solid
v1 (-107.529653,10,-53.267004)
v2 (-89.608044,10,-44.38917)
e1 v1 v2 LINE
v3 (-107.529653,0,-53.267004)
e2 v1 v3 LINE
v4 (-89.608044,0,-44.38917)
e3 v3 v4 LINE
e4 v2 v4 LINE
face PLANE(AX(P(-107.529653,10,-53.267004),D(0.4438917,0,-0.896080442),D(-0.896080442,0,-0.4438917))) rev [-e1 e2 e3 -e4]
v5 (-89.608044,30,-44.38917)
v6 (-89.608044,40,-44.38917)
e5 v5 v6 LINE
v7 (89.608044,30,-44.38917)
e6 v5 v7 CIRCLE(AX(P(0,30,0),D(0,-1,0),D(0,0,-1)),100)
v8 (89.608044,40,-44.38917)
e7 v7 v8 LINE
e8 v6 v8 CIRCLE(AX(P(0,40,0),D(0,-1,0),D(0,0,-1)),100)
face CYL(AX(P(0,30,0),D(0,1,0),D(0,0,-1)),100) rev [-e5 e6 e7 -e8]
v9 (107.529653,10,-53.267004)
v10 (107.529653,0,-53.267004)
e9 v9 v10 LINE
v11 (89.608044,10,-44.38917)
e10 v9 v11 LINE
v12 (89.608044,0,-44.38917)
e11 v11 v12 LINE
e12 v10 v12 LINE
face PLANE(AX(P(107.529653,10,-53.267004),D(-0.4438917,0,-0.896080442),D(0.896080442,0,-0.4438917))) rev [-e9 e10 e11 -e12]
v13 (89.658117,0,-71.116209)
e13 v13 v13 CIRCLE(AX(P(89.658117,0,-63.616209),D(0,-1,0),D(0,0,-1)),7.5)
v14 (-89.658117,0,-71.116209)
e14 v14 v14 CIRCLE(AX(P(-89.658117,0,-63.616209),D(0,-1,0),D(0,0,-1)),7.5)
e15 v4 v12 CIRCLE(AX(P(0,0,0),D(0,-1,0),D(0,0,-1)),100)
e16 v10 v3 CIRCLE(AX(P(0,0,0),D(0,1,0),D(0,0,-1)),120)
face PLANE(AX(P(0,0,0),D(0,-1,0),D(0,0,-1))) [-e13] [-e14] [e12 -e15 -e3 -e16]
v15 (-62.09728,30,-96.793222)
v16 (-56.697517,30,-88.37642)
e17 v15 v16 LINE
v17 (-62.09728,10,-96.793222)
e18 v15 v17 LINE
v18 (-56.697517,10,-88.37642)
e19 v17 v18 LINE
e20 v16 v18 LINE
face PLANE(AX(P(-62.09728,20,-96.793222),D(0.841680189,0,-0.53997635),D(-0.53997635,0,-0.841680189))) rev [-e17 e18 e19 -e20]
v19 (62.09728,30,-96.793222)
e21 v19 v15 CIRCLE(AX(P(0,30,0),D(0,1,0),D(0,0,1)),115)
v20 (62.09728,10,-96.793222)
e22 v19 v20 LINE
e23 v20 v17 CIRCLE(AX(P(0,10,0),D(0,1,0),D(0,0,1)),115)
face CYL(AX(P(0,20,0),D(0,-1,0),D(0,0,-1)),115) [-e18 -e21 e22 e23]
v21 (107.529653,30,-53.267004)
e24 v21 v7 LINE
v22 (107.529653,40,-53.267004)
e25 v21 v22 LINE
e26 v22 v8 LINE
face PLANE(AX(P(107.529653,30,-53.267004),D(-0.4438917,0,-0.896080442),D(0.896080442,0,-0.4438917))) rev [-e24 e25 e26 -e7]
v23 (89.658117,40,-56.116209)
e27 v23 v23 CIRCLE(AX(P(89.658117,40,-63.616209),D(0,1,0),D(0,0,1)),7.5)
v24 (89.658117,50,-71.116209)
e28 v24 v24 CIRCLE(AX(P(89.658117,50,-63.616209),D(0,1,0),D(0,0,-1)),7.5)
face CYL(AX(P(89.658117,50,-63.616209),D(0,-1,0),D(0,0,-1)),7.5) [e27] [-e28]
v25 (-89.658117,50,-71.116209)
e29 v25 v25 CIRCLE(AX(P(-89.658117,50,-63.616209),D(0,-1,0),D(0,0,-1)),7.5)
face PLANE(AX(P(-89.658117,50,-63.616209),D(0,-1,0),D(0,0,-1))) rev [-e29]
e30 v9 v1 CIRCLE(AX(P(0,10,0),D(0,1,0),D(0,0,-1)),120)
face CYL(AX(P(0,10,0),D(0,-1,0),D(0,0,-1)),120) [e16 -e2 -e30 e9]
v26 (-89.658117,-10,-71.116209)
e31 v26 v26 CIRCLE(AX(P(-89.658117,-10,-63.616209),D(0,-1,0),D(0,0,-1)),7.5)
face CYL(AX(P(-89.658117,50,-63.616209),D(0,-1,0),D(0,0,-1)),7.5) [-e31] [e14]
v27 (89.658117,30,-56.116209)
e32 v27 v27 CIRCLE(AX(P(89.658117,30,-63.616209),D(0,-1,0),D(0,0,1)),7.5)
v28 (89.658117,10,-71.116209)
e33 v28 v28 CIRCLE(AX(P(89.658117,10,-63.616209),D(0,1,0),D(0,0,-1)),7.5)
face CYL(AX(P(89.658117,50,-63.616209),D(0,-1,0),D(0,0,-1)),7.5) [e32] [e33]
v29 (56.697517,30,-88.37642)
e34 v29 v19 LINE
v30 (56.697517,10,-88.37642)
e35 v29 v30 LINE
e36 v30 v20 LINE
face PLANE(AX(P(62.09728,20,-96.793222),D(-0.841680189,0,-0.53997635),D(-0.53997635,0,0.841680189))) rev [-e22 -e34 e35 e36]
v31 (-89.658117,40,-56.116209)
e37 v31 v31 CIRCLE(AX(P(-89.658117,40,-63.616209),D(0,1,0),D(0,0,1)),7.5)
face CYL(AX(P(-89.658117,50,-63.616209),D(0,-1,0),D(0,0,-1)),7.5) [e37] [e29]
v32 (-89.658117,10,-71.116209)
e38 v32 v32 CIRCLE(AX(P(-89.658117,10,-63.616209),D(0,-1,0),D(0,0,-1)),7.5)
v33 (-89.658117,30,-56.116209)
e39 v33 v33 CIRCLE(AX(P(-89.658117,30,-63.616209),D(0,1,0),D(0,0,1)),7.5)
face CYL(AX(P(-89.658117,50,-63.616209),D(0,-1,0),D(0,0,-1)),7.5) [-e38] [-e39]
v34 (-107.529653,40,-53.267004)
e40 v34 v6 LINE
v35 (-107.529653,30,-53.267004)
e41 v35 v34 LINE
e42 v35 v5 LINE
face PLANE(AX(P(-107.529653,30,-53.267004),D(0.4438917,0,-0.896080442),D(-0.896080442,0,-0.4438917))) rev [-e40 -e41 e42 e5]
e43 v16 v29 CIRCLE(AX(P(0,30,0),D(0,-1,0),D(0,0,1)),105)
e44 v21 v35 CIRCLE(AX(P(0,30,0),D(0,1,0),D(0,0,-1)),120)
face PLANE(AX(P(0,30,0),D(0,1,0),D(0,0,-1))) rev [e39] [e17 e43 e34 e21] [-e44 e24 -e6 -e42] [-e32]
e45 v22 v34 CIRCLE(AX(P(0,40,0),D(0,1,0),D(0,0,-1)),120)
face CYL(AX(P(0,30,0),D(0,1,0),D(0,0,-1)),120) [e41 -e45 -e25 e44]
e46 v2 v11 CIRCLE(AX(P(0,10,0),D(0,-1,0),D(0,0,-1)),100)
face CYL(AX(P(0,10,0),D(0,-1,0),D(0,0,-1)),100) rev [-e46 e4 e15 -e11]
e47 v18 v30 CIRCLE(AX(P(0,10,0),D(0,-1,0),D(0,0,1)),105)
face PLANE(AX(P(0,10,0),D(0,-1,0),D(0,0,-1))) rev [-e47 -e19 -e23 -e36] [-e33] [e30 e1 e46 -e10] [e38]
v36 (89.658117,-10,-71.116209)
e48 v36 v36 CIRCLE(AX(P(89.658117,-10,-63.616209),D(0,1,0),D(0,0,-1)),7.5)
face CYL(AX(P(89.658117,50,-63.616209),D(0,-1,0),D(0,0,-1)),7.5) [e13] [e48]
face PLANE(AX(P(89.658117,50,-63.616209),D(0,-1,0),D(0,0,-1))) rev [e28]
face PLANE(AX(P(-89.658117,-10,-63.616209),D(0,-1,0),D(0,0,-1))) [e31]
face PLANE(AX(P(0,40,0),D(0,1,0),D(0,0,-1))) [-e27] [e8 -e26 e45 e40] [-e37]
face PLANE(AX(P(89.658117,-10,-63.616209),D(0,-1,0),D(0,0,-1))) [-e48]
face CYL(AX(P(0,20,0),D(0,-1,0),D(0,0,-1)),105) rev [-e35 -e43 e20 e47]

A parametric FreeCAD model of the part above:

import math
import FreeCAD as App
import Part
import Sketcher
from FreeCAD import Vector
Q = App.Units.Quantity

doc = App.newDocument("Part")
body = doc.addObject("PartDesign::Body", "Body")

sketch1 = body.newObject("Sketcher::SketchObject", "Sketch")
sketch1.AttachmentSupport = (doc.getObject("XZ_Plane"), [""])
sketch1.MapMode = "FlatFace"
sketch1.addGeometry([
    Part.LineSegment(Vector(-108, -53, 0), Vector(-90, -44, 0)),
    Part.ArcOfCircle(Part.Circle(Vector(0, 0, 0), Vector(0, 0, 1), 100), math.radians(-154), math.radians(-27)),
    Part.LineSegment(Vector(89, -46, 0), Vector(106, -55, 0)),
    Part.ArcOfCircle(Part.Circle(Vector(0, 0, 0), Vector(0, 0, 1), 120), math.radians(-154), math.radians(-27)),
], False)
sketch1.addConstraint([
    Sketcher.Constraint("Coincident", 0, 2, 1, 1),
    Sketcher.Constraint("Coincident", 1, 2, 2, 1),
    Sketcher.Constraint("Coincident", 2, 2, 3, 2),
    Sketcher.Constraint("Coincident", 3, 1, 0, 1),
    Sketcher.Constraint("Coincident", 1, 3, -1, 1),
    Sketcher.Constraint("Coincident", 3, 3, -1, 1),
    Sketcher.Constraint("Radius", 1, Q("100 mm")),
    Sketcher.Constraint("Radius", 3, Q("120 mm")),
    Sketcher.Constraint("DistanceX", 3, 1, 2, 2, Q("214.004298 mm")),
    Sketcher.Constraint("DistanceY", 0, 2, -1, 1, Q("44.38917 mm")),
    Sketcher.Constraint("DistanceX", -1, 1, 1, 2, Q("88.728871 mm")),
    Sketcher.Constraint("DistanceY", 2, 2, -1, 1, Q("55.345731 mm")),
])
pad1 = body.newObject("PartDesign::Pad", "Pad")
pad1.Profile = sketch1
pad1.Length = 10
pad1.Reversed = True

sketch2 = body.newObject("Sketcher::SketchObject", "Sketch001")
sketch2.AttachmentSupport = (doc.getObject("XZ_Plane"), [""])
sketch2.MapMode = "FlatFace"
sketch2.AttachmentOffset = App.Placement(Vector(0, 0, -10), App.Rotation())
sketch2.addGeometry([
    Part.LineSegment(Vector(-62, -97, 0), Vector(-57, -88, 0)),
    Part.ArcOfCircle(Part.Circle(Vector(0, 0, 0), Vector(0, 0, 1), 105), math.radians(-123), math.radians(-57)),
    Part.LineSegment(Vector(57, -88, 0), Vector(62, -97, 0)),
    Part.ArcOfCircle(Part.Circle(Vector(0, 0, 0), Vector(0, 0, 1), 115), math.radians(-123), math.radians(-57)),
], False)
sketch2.addConstraint([
    Sketcher.Constraint("Coincident", 0, 2, 1, 1),
    Sketcher.Constraint("Coincident", 1, 2, 2, 1),
    Sketcher.Constraint("Coincident", 2, 2, 3, 2),
    Sketcher.Constraint("Coincident", 3, 1, 0, 1),
    Sketcher.Constraint("Coincident", 1, 3, -1, 1),
    Sketcher.Constraint("Coincident", 3, 3, -1, 1),
    Sketcher.Constraint("Horizontal", 0, 2, 1, 2),
    Sketcher.Constraint("Horizontal", 2, 2, 3, 1),
    Sketcher.Constraint("Radius", 1, Q("105 mm")),
    Sketcher.Constraint("Radius", 3, Q("115 mm")),
    Sketcher.Constraint("DistanceY", 2, 2, 1, 2, Q("8.416802 mm")),
    Sketcher.Constraint("DistanceY", 0, 2, -1, 1, Q("88.37642 mm")),
])
pad2 = body.newObject("PartDesign::Pad", "Pad001")
pad2.Profile = sketch2
pad2.Length = 10
pad2.Reversed = True
body2 = doc.addObject("PartDesign::Body", "Body001")
doc.recompute()

body2.BaseFeature = body
doc.recompute()

mirroring = doc.addObject("Part::Mirroring", "Mirroring")
mirroring.Source = body
mirroring.Base = Vector(0, 20, 0)
mirroring.Normal = Vector(0, 1, 0)
body3 = doc.addObject("PartDesign::Body", "Body002")
body3.BaseFeature = mirroring
boolean = body2.newObject("PartDesign::Boolean", "Boolean")
boolean.Type = "Fuse"
boolean.addObjects([body3])
doc.recompute()

sketch3 = body2.newObject("Sketcher::SketchObject", "Sketch002")
sketch3.AttachmentSupport = (doc.getObject("XZ_Plane001"), [""])
sketch3.MapMode = "FlatFace"
sketch3.addGeometry(Part.Circle(Vector(-90, -64, 0), Vector(0, 0, 1), 8), False)
sketch3.addConstraint([
    Sketcher.Constraint("Diameter", 0, Q("15 mm")),
    Sketcher.Constraint("DistanceY", 0, 3, -1, 1, Q("63.616209 mm")),
    Sketcher.Constraint("DistanceX", 0, 3, -1, 1, Q("89.658117 mm")),
])
pad3 = body2.newObject("PartDesign::Pad", "Pad002")
pad3.Profile = sketch3
pad3.Type = "TwoLengths"
pad3.Length = 10
pad3.Length2 = 50
body4 = doc.addObject("PartDesign::Body", "Body003")
doc.recompute()

body4.BaseFeature = body2
doc.recompute()

mirroring2 = doc.addObject("Part::Mirroring", "Mirroring001")
mirroring2.Source = body2
mirroring2.Base = Vector(0, 0, 0)
mirroring2.Normal = Vector(1, 0, 0)
body5 = doc.addObject("PartDesign::Body", "Body004")
body5.BaseFeature = mirroring2
boolean2 = body4.newObject("PartDesign::Boolean", "Boolean001")
boolean2.Type = "Fuse"
boolean2.addObjects([body5])
doc.recompute()
mirroring.Visibility = False
mirroring2.Visibility = False

doc.recompute()
